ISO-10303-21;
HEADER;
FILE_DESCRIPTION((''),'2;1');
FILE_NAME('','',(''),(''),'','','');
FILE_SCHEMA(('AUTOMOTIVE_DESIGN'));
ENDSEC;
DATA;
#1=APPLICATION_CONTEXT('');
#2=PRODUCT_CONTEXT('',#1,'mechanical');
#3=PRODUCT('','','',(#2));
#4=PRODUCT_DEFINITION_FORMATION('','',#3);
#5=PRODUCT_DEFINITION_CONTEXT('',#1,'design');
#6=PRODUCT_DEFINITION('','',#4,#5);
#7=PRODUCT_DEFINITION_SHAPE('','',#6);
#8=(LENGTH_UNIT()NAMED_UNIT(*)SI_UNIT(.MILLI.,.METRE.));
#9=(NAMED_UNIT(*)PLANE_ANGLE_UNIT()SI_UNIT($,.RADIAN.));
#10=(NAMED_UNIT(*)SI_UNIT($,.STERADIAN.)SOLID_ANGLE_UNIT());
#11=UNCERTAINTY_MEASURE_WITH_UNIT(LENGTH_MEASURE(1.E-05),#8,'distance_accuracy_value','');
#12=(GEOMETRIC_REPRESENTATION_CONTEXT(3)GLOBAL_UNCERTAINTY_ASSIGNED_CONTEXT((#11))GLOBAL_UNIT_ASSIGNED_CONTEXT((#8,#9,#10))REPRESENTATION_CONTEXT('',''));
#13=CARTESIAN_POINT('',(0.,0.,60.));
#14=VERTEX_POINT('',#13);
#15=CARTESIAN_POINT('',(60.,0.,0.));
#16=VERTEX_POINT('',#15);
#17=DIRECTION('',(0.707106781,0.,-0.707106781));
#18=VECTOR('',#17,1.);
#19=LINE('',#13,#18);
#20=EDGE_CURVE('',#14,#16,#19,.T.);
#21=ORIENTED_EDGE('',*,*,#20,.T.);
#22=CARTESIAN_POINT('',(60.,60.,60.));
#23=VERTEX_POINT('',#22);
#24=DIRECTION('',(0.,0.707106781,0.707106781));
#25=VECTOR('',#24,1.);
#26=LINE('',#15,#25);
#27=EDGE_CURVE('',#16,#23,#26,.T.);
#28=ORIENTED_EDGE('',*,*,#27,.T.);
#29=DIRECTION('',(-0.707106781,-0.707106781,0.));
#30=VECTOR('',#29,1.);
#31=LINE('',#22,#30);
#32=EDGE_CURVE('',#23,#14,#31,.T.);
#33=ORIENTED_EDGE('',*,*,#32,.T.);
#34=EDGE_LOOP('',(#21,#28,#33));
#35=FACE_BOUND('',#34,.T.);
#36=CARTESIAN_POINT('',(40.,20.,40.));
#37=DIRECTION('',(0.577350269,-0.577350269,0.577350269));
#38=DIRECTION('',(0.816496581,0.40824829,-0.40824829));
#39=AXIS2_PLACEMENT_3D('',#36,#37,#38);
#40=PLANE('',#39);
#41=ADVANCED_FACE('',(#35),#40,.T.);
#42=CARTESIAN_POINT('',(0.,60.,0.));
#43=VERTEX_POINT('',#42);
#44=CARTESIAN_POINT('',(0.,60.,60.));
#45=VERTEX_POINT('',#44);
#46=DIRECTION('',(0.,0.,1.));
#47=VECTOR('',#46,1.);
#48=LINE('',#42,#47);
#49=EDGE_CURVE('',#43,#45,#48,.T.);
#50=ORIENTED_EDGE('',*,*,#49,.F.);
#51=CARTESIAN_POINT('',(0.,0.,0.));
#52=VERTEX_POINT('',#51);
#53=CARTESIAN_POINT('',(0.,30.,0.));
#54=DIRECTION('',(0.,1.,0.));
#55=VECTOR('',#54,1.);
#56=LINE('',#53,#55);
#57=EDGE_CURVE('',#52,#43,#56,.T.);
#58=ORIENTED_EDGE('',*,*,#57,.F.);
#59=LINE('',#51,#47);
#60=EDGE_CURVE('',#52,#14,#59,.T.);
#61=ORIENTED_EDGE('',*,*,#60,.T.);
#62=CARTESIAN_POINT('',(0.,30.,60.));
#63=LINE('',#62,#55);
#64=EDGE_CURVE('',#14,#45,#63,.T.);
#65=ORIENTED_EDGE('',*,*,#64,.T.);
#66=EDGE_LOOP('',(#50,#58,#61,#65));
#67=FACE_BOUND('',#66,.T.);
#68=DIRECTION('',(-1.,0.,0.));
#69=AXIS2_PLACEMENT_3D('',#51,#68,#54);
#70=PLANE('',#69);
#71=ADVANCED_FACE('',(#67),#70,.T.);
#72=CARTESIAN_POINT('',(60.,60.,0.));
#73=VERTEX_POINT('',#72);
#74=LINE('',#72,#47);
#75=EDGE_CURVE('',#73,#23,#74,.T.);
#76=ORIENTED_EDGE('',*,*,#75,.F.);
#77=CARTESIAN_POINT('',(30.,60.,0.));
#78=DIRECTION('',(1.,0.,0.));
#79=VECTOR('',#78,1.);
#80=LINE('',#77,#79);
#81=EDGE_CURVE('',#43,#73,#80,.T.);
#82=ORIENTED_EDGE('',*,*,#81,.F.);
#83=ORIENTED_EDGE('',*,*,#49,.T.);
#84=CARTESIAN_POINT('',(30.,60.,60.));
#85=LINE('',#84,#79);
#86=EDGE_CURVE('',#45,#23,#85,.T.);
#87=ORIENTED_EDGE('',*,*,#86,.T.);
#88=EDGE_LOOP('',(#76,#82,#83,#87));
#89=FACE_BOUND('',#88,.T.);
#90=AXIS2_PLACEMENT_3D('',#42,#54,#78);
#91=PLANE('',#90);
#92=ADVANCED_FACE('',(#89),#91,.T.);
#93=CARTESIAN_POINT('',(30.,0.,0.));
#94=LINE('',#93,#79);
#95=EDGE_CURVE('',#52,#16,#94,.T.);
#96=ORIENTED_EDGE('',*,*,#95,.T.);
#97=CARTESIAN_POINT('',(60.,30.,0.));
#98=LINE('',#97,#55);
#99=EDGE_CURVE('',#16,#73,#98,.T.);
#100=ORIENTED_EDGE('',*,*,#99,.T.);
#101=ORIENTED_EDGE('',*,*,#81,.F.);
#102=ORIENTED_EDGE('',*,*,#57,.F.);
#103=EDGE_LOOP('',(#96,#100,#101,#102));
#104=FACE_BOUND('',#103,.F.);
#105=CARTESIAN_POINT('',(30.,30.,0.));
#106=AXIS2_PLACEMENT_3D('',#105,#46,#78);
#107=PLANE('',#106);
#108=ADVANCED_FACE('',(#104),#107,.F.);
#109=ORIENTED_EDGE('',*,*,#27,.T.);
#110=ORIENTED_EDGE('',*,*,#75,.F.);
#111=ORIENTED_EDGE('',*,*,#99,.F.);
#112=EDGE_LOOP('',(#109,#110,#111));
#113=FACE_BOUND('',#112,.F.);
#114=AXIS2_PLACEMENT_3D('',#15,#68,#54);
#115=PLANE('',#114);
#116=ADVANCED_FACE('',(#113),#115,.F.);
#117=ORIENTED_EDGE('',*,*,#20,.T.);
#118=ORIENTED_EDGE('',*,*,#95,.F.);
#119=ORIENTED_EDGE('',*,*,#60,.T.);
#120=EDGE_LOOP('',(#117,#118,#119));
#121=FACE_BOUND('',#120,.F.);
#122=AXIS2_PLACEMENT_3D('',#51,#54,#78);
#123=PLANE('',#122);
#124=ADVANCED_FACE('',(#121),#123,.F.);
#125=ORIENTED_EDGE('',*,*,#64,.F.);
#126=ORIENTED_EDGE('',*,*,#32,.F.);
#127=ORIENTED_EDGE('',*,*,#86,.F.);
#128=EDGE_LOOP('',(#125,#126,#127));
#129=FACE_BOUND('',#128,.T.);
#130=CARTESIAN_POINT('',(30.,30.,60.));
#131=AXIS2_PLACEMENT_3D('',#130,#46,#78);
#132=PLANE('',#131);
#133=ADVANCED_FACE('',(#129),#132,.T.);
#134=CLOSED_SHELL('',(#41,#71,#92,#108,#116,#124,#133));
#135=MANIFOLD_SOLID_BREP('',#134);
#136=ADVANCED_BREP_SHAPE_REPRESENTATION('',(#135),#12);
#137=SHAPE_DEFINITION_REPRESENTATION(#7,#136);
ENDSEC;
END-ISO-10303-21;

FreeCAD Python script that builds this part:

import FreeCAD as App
import Part
import Sketcher
from FreeCAD import Vector
Q = App.Units.Quantity

doc = App.newDocument("Part")
body = doc.addObject("PartDesign::Body", "Body")

sketch1 = body.newObject("Sketcher::SketchObject", "Sketch")
sketch1.AttachmentSupport = (doc.getObject("XY_Plane"), [""])
sketch1.MapMode = "FlatFace"
sketch1.addGeometry(Part.LineSegment(Vector(0, 60, 0), Vector(0, 0, 0)), False)
sketch1.addGeometry(Part.LineSegment(Vector(0, 0, 0), Vector(60, 0, 0)), False)
sketch1.addGeometry(Part.LineSegment(Vector(60, 0, 0), Vector(60, 60, 0)), False)
sketch1.addGeometry(Part.LineSegment(Vector(60, 60, 0), Vector(0, 60, 0)), False)
sketch1.addConstraint(Sketcher.Constraint("Coincident", 0, 2, 1, 1))
sketch1.addConstraint(Sketcher.Constraint("Coincident", 1, 2, 2, 1))
sketch1.addConstraint(Sketcher.Constraint("Coincident", 2, 2, 3, 1))
sketch1.addConstraint(Sketcher.Constraint("Coincident", 3, 2, 0, 1))
sketch1.addConstraint(Sketcher.Constraint("Vertical", 0))
sketch1.addConstraint(Sketcher.Constraint("Horizontal", 1))
sketch1.addConstraint(Sketcher.Constraint("Vertical", 2))
sketch1.addConstraint(Sketcher.Constraint("Horizontal", 3))
sketch1.addConstraint(Sketcher.Constraint("Coincident", 0, 2, -1, 1))
sketch1.addConstraint(Sketcher.Constraint("Equal", 3, 0))
sketch1.addConstraint(Sketcher.Constraint("DistanceX", 1, 1, 1, 2, Q("60 mm")))
pad1 = body.newObject("PartDesign::Pad", "Pad")
pad1.Profile = sketch1
pad1.Length = 60

sketch2 = body.newObject("Sketcher::SketchObject", "Sketch001")
sketch2.Placement = App.Placement(Vector(20, -20, 20), App.Rotation(Vector(0.816496581, 0.40824829, -0.40824829), Vector(0, 0.707106781, 0.707106781), Vector(0.577350269, -0.577350269, 0.577350269), "ZXY"))
sketch2.addGeometry(Part.LineSegment(Vector(49, 85, 0), Vector(-24, 42, 0)), False)
sketch2.addGeometry(Part.LineSegment(Vector(-24, 42, 0), Vector(49, 0, 0)), False)
sketch2.addGeometry(Part.LineSegment(Vector(49, 0, 0), Vector(49, 85, 0)), False)
sketch2.addConstraint(Sketcher.Constraint("Coincident", 0, 2, 1, 1))
sketch2.addConstraint(Sketcher.Constraint("Coincident", 1, 2, 2, 1))
sketch2.addConstraint(Sketcher.Constraint("Coincident", 2, 2, 0, 1))
sketch2.addConstraint(Sketcher.Constraint("Vertical", 2))
sketch2.addConstraint(Sketcher.Constraint("PointOnObject", 1, 2, -1))
sketch2.addConstraint(Sketcher.Constraint("Equal", 0, 1))
sketch2.addConstraint(Sketcher.Constraint("Angle", 0, Q("-150 deg")))
sketch2.addConstraint(Sketcher.Constraint("DistanceY", 2, 1, 2, 2, Q("84.852814 mm")))
sketch2.addConstraint(Sketcher.Constraint("DistanceX", 0, 2, -1, 1, Q("24.494897 mm")))
pocket1 = body.newObject("PartDesign::Pocket", "Pocket")
pocket1.Profile = sketch2
pocket1.Type = "ThroughAll"
pocket1.Reversed = True

doc.recompute()
